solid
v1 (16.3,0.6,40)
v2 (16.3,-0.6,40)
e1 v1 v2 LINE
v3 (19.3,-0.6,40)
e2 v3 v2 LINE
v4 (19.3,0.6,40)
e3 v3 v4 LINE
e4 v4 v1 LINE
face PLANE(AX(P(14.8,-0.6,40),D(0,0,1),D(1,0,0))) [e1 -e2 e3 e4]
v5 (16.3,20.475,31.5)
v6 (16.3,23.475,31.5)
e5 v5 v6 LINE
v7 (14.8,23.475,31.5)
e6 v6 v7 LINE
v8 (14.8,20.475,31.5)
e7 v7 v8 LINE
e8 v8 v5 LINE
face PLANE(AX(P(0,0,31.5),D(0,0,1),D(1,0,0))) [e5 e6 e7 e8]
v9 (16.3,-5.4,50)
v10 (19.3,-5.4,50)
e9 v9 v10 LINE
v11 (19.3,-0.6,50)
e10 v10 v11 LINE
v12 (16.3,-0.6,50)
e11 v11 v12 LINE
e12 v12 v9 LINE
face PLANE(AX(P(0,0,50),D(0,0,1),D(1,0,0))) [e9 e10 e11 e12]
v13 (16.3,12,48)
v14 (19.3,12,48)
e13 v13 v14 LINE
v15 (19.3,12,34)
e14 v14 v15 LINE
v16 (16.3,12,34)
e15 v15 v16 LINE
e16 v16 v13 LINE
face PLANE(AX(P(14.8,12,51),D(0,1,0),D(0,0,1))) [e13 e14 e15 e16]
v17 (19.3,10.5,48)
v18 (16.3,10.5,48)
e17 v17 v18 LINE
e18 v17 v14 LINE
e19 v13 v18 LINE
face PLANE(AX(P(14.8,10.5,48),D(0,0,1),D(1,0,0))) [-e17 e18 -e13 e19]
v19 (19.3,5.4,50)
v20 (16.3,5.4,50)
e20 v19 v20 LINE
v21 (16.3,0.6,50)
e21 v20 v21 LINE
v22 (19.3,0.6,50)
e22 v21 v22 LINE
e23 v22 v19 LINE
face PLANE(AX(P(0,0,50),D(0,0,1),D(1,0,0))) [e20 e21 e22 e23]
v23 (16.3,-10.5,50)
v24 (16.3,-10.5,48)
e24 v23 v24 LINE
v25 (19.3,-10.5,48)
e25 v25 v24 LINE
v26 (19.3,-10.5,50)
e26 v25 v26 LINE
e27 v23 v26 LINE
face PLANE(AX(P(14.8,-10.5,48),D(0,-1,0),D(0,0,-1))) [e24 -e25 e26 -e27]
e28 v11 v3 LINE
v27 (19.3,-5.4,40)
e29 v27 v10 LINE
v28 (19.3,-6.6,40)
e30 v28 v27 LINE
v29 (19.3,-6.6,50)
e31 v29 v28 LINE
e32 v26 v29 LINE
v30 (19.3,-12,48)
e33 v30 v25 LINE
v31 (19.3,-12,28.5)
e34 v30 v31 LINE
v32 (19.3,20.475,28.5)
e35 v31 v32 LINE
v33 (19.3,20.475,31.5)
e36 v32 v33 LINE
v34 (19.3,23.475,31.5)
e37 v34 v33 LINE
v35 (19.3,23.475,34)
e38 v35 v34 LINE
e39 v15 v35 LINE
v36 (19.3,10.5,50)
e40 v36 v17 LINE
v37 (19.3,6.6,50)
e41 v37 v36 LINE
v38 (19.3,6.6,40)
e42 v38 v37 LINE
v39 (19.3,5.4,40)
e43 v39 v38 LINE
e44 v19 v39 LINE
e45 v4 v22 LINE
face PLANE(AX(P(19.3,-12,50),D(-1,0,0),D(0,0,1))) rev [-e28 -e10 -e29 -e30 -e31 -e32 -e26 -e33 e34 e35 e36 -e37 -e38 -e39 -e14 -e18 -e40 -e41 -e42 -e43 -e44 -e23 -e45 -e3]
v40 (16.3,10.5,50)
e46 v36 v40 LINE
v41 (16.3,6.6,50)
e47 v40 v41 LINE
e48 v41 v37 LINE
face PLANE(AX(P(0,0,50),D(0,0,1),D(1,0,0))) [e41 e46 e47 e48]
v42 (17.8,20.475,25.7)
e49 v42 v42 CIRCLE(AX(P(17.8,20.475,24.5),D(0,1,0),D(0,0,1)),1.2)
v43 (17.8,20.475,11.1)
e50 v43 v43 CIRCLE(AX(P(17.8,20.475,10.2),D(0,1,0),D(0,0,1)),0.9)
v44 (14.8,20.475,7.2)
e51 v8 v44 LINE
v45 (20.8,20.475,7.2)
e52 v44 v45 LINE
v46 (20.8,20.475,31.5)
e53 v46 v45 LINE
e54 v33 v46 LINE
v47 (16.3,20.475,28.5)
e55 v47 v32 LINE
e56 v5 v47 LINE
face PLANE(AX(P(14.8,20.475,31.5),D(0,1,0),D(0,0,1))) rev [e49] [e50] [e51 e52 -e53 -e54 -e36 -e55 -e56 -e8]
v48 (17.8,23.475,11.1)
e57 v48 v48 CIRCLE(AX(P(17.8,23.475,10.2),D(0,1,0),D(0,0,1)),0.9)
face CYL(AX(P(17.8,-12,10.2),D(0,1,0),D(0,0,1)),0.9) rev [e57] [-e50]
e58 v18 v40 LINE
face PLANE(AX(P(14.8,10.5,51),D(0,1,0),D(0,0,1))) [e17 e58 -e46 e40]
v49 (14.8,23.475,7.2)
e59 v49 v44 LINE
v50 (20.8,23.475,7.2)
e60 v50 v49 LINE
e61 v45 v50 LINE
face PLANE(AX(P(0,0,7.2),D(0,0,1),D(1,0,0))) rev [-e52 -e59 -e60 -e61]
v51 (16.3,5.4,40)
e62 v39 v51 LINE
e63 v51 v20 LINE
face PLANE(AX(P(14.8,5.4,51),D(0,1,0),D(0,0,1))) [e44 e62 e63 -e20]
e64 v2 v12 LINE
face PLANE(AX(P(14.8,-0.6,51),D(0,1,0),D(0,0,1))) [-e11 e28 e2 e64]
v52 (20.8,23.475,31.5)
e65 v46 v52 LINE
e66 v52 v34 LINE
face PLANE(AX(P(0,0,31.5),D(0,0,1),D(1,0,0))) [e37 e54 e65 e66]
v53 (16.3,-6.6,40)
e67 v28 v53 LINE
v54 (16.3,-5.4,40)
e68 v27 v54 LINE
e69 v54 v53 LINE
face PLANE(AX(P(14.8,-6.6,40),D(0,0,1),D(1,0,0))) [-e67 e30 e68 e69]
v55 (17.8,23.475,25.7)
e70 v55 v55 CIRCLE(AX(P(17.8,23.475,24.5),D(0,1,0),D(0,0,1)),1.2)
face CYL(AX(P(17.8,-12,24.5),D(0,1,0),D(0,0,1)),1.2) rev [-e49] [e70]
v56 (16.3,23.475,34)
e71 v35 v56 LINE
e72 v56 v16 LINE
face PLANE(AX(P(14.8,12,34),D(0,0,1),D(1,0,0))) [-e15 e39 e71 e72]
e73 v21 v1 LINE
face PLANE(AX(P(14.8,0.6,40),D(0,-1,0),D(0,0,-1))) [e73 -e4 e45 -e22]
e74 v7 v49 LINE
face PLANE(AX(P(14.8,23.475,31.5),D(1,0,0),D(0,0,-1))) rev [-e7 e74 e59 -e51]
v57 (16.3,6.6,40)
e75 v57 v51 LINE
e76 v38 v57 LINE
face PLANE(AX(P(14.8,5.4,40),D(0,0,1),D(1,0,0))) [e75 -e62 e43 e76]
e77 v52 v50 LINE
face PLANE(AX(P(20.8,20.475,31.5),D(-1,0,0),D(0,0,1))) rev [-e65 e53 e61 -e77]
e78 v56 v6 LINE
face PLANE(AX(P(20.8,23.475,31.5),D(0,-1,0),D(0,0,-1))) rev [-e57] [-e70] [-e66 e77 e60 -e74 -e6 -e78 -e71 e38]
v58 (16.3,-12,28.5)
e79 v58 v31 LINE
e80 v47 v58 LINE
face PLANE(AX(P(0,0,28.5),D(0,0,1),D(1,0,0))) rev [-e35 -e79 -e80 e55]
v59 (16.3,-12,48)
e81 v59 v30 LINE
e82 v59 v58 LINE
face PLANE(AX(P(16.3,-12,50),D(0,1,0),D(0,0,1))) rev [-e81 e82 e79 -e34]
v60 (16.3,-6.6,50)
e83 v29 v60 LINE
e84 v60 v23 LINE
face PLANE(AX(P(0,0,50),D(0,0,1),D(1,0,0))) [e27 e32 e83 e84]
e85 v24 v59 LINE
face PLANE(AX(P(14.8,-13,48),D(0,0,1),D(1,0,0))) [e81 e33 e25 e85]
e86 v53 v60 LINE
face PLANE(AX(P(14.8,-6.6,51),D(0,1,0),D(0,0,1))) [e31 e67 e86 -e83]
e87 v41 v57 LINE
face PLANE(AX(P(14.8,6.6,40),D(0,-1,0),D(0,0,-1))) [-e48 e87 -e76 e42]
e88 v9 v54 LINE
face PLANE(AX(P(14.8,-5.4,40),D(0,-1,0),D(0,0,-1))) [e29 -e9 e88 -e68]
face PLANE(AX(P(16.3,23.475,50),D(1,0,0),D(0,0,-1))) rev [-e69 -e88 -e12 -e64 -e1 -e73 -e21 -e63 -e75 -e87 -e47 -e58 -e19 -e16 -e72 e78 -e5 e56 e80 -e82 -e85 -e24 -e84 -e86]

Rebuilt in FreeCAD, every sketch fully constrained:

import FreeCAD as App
import Part
import Sketcher

V = App.Vector
Q = App.Units.Quantity


def add_polygon(sketch, points):
    """Adds a closed chain of lines whose ends are joined by coincident constraints."""
    first, n = sketch.GeometryCount, len(points)
    for a, b in zip(points, points[1:] + points[:1]):
        sketch.addGeometry(Part.LineSegment(App.Vector(*a, 0), App.Vector(*b, 0)), False)
    for i in range(n):
        sketch.addConstraint(Sketcher.Constraint("Coincident", first + i, 2, first + (i + 1) % n, 1))

doc = App.newDocument("Part")
body = doc.addObject("PartDesign::Body", "Body")

# Sketch on XY plane
sketch1 = body.newObject("Sketcher::SketchObject", "Sketch")
sketch1.AttachmentSupport = (doc.getObject("XY_Plane"), [""])
sketch1.MapMode = "FlatFace"
sketch1.AttachmentOffset = App.Placement(V(0, 0, 7.2), App.Rotation())
add_polygon(sketch1, [(14.8, 23.5), (14.8, 20.5), (20.8, 20.5), (20.8, 23.5)])  # lines 0-3
sketch1.addConstraint([
    Sketcher.Constraint("Vertical", 0),
    Sketcher.Constraint("Horizontal", 1),
    Sketcher.Constraint("Vertical", 2),
    Sketcher.Constraint("Horizontal", 3),
    Sketcher.Constraint("DistanceX", 1, 1, 1, 2, Q("6 mm")),
    Sketcher.Constraint("DistanceY", 0, 2, 0, 1, Q("3 mm")),
    Sketcher.Constraint("DistanceX", -1, 1, 0, 2, Q("14.8 mm")),
    Sketcher.Constraint("DistanceY", -1, 1, 0, 2, Q("20.475 mm")),
])
pad1 = body.newObject("PartDesign::Pad", "Pad")
pad1.Profile = sketch1
pad1.Length = 24.3

# Sketch on XY plane
sketch2 = body.newObject("Sketcher::SketchObject", "Sketch001")
sketch2.AttachmentSupport = (doc.getObject("XY_Plane"), [""])
sketch2.MapMode = "FlatFace"
sketch2.AttachmentOffset = App.Placement(V(0, 0, 28.5), App.Rotation())
add_polygon(sketch2, [(16.3, 23.5), (16.3, -12), (19.3, -12), (19.3, 23.5)])  # lines 0-3
sketch2.addConstraint([
    Sketcher.Constraint("Vertical", 0),
    Sketcher.Constraint("Horizontal", 1),
    Sketcher.Constraint("Vertical", 2),
    Sketcher.Constraint("Horizontal", 3),
    Sketcher.Constraint("DistanceX", 1, 1, 1, 2, Q("3 mm")),
    Sketcher.Constraint("DistanceY", 0, 2, -1, 1, Q("12 mm")),
    Sketcher.Constraint("DistanceX", -1, 1, 0, 2, Q("16.3 mm")),
    Sketcher.Constraint("DistanceY", 0, 2, 0, 1, Q("35.475 mm")),
])
pad2 = body.newObject("PartDesign::Pad", "Pad001")
pad2.Profile = sketch2
pad2.Length = 21.5

# Sketch on XZ plane
sketch3 = body.newObject("Sketcher::SketchObject", "Sketch002")
sketch3.AttachmentSupport = (doc.getObject("XZ_Plane"), [""])
sketch3.MapMode = "FlatFace"
sketch3.addGeometry([
    Part.Circle(V(17.8, 24.5, 0), V(0, 0, 1), 1.2),
    Part.Circle(V(17.8, 10.2, 0), V(0, 0, 1), 0.9),
], False)
sketch3.addConstraint([
    Sketcher.Constraint("Vertical", 0, 3, 1, 3),
    Sketcher.Constraint("Diameter", 0, Q("2.4 mm")),
    Sketcher.Constraint("Diameter", 1, Q("1.8 mm")),
    Sketcher.Constraint("DistanceX", -1, 1, 0, 3, Q("17.8 mm")),
    Sketcher.Constraint("DistanceY", -1, 1, 0, 3, Q("24.5 mm")),
    Sketcher.Constraint("DistanceY", -1, 1, 1, 3, Q("10.2 mm")),
])
pocket1 = body.newObject("PartDesign::Pocket", "Pocket")
pocket1.Profile = sketch3
pocket1.Type = "ThroughAll"
pocket1.Midplane = True

# Sketch on YZ plane
sketch4 = body.newObject("Sketcher::SketchObject", "Sketch003")
sketch4.AttachmentSupport = (doc.getObject("YZ_Plane"), [""])
sketch4.MapMode = "FlatFace"
add_polygon(sketch4, [(-5.4, 51), (-6.6, 51), (-6.6, 40), (-5.4, 40)])  # lines 0-3
add_polygon(sketch4, [(0.6, 51), (-0.6, 51), (-0.6, 40), (0.6, 40)])  # lines 4-7
add_polygon(sketch4, [(6.6, 51), (5.4, 51), (5.4, 40), (6.6, 40)])  # lines 8-11
add_polygon(sketch4, [(24.5, 51), (12, 51), (12, 34), (24.5, 34)])  # lines 12-15
sketch4.addConstraint([
    Sketcher.Constraint("Horizontal", 0),
    Sketcher.Constraint("Vertical", 1),
    Sketcher.Constraint("Horizontal", 2),
    Sketcher.Constraint("Vertical", 3),
    Sketcher.Constraint("Horizontal", 4),
    Sketcher.Constraint("Vertical", 5),
    Sketcher.Constraint("Horizontal", 6),
    Sketcher.Constraint("Vertical", 7),
    Sketcher.Constraint("Horizontal", 8),
    Sketcher.Constraint("Vertical", 9),
    Sketcher.Constraint("Horizontal", 10),
    Sketcher.Constraint("Vertical", 11),
    Sketcher.Constraint("Horizontal", 12),
    Sketcher.Constraint("Vertical", 13),
    Sketcher.Constraint("Horizontal", 14),
    Sketcher.Constraint("Vertical", 15),
    Sketcher.Constraint("Symmetric", 3, 2, 8, 2, -2),
    Sketcher.Constraint("Symmetric", 1, 2, 10, 2, -2),
    Sketcher.Constraint("Horizontal", 3, 2, 4, 2),
    Sketcher.Constraint("Horizontal", 2, 2, 5, 2),
    Sketcher.Constraint("Horizontal", 11, 2, 12, 2),
    Sketcher.Constraint("Equal", 2, 4),
    Sketcher.Constraint("DistanceY", 1, 2, 1, 1, Q("11 mm")),
    Sketcher.Constraint("DistanceY", 13, 2, 13, 1, Q("17 mm")),
    Sketcher.Constraint("DistanceX", 0, 2, 0, 1, Q("1.2 mm")),
    Sketcher.Constraint("DistanceY", -1, 1, 0, 2, Q("51 mm")),
    Sketcher.Constraint("DistanceX", -1, 1, 12, 2, Q("12 mm")),
    Sketcher.Constraint("DistanceX", 0, 2, 4, 2, Q("6 mm")),
    Sketcher.Constraint("DistanceX", 4, 2, 8, 2, Q("6 mm")),
    Sketcher.Constraint("DistanceX", 12, 2, 12, 1, Q("12.475 mm")),
])
pocket2 = body.newObject("PartDesign::Pocket", "Pocket001")
pocket2.Profile = sketch4
pocket2.Type = "ThroughAll"
pocket2.Midplane = True

# Sketch on YZ plane
sketch5 = body.newObject("Sketcher::SketchObject", "Sketch004")
sketch5.AttachmentSupport = (doc.getObject("YZ_Plane"), [""])
sketch5.MapMode = "FlatFace"
add_polygon(sketch5, [(-10.5, 51), (-13, 51), (-13, 48), (-10.5, 48)])  # lines 0-3
add_polygon(sketch5, [(13, 51), (10.5, 51), (10.5, 48), (13, 48)])  # lines 4-7
sketch5.addConstraint([
    Sketcher.Constraint("Horizontal", 0),
    Sketcher.Constraint("Vertical", 1),
    Sketcher.Constraint("Horizontal", 2),
    Sketcher.Constraint("Vertical", 3),
    Sketcher.Constraint("Horizontal", 4),
    Sketcher.Constraint("Vertical", 5),
    Sketcher.Constraint("Horizontal", 6),
    Sketcher.Constraint("Vertical", 7),
    Sketcher.Constraint("Symmetric", 3, 2, 4, 2, -2),
    Sketcher.Constraint("Symmetric", 1, 2, 6, 2, -2),
    Sketcher.Constraint("DistanceY", 1, 2, 1, 1, Q("3 mm")),
    Sketcher.Constraint("DistanceX", 0, 2, 0, 1, Q("2.5 mm")),
    Sketcher.Constraint("DistanceX", 0, 2, -1, 1, Q("13 mm")),
    Sketcher.Constraint("DistanceY", -1, 1, 0, 2, Q("51 mm")),
])
pocket3 = body.newObject("PartDesign::Pocket", "Pocket002")
pocket3.Profile = sketch5
pocket3.Type = "ThroughAll"
pocket3.Midplane = True

doc.recompute()
